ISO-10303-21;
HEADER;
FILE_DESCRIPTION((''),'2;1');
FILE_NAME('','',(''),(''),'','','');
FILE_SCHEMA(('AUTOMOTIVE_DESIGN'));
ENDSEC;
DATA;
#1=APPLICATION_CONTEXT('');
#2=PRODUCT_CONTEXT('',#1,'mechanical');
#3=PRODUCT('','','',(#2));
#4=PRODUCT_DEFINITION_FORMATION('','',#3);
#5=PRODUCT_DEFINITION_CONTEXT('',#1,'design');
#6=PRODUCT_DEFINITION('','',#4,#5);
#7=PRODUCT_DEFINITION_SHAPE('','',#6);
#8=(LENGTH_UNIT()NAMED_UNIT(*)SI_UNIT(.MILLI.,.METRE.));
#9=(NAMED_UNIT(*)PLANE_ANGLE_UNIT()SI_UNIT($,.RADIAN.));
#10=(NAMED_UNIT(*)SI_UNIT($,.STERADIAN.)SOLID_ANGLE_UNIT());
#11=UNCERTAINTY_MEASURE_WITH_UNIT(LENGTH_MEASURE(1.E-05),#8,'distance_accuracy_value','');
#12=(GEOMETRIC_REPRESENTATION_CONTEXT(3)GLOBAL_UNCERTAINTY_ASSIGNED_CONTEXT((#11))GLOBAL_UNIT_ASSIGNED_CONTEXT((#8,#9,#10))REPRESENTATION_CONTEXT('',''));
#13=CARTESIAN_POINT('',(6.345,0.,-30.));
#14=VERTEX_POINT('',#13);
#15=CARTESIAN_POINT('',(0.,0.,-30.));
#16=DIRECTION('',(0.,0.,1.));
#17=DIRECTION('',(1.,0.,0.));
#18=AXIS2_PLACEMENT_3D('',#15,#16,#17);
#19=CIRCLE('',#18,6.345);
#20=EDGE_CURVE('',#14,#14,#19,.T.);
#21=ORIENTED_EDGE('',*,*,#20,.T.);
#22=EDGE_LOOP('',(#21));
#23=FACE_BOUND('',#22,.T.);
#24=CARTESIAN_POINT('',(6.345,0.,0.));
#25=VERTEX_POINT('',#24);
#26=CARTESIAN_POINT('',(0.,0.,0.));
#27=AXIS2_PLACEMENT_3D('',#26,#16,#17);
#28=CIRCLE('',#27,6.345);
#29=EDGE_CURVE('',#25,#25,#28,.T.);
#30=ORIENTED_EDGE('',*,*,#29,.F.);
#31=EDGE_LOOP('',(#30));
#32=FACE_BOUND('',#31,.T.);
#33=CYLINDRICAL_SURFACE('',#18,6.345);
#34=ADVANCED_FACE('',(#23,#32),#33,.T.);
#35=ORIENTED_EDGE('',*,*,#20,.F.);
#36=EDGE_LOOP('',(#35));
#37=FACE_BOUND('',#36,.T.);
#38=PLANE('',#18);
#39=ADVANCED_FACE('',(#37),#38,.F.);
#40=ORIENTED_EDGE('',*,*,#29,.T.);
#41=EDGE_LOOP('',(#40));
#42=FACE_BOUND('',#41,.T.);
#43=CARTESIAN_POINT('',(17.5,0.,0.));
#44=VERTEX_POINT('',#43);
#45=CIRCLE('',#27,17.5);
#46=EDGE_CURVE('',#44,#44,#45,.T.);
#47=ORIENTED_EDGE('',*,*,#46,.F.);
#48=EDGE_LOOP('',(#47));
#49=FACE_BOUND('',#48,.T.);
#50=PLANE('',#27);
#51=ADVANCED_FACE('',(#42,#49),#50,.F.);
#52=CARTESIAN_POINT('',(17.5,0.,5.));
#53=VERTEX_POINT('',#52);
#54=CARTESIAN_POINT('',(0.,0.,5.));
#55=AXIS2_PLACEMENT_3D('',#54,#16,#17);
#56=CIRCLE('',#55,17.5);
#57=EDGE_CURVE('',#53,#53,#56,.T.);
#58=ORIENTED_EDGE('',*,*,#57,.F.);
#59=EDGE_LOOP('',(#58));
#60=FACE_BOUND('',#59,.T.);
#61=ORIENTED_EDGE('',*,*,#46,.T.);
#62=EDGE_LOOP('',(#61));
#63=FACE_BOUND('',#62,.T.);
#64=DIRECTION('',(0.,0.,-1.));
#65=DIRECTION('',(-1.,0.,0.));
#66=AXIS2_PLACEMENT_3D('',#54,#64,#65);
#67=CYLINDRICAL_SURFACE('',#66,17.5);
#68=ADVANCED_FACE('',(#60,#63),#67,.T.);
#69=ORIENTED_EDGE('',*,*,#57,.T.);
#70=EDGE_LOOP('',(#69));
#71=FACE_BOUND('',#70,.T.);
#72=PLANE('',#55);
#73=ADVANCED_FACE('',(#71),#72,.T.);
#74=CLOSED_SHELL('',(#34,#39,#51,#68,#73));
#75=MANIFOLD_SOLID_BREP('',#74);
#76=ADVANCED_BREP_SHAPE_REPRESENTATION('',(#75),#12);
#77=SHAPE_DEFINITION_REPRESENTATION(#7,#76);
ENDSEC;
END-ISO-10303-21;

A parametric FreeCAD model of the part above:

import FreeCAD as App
import Part
import Sketcher
from FreeCAD import Vector

doc = App.newDocument("Part")
body = doc.addObject("PartDesign::Body", "Body")

# Sketch on XY plane
sketch1 = body.newObject("Sketcher::SketchObject", "Sketch")
sketch1.AttachmentSupport = (doc.getObject("XY_Plane"), [""])
sketch1.MapMode = "FlatFace"
sketch1.addGeometry(Part.Circle(Vector(0, 0, 0), Vector(0, 0, 1), 18), False)
sketch1.addConstraint([
    Sketcher.Constraint("Coincident", 0, 3, -1, 1),
    Sketcher.Constraint("Diameter", 0, 35.0),
])
pad1 = body.newObject("PartDesign::Pad", "Pad")
pad1.Profile = sketch1
pad1.Length = 5

# Sketch on XY plane
sketch2 = body.newObject("Sketcher::SketchObject", "Sketch001")
sketch2.AttachmentSupport = (doc.getObject("XY_Plane"), [""])
sketch2.MapMode = "FlatFace"
sketch2.addGeometry(Part.Circle(Vector(0, 0, 0), Vector(0, 0, 1), 6), False)
sketch2.addConstraint([
    Sketcher.Constraint("Coincident", 0, 3, -1, 1),
    Sketcher.Constraint("Diameter", 0, 12.69),
])
pad2 = body.newObject("PartDesign::Pad", "Pad001")
pad2.Profile = sketch2
pad2.Length = 30
pad2.Reversed = True

doc.recompute()
